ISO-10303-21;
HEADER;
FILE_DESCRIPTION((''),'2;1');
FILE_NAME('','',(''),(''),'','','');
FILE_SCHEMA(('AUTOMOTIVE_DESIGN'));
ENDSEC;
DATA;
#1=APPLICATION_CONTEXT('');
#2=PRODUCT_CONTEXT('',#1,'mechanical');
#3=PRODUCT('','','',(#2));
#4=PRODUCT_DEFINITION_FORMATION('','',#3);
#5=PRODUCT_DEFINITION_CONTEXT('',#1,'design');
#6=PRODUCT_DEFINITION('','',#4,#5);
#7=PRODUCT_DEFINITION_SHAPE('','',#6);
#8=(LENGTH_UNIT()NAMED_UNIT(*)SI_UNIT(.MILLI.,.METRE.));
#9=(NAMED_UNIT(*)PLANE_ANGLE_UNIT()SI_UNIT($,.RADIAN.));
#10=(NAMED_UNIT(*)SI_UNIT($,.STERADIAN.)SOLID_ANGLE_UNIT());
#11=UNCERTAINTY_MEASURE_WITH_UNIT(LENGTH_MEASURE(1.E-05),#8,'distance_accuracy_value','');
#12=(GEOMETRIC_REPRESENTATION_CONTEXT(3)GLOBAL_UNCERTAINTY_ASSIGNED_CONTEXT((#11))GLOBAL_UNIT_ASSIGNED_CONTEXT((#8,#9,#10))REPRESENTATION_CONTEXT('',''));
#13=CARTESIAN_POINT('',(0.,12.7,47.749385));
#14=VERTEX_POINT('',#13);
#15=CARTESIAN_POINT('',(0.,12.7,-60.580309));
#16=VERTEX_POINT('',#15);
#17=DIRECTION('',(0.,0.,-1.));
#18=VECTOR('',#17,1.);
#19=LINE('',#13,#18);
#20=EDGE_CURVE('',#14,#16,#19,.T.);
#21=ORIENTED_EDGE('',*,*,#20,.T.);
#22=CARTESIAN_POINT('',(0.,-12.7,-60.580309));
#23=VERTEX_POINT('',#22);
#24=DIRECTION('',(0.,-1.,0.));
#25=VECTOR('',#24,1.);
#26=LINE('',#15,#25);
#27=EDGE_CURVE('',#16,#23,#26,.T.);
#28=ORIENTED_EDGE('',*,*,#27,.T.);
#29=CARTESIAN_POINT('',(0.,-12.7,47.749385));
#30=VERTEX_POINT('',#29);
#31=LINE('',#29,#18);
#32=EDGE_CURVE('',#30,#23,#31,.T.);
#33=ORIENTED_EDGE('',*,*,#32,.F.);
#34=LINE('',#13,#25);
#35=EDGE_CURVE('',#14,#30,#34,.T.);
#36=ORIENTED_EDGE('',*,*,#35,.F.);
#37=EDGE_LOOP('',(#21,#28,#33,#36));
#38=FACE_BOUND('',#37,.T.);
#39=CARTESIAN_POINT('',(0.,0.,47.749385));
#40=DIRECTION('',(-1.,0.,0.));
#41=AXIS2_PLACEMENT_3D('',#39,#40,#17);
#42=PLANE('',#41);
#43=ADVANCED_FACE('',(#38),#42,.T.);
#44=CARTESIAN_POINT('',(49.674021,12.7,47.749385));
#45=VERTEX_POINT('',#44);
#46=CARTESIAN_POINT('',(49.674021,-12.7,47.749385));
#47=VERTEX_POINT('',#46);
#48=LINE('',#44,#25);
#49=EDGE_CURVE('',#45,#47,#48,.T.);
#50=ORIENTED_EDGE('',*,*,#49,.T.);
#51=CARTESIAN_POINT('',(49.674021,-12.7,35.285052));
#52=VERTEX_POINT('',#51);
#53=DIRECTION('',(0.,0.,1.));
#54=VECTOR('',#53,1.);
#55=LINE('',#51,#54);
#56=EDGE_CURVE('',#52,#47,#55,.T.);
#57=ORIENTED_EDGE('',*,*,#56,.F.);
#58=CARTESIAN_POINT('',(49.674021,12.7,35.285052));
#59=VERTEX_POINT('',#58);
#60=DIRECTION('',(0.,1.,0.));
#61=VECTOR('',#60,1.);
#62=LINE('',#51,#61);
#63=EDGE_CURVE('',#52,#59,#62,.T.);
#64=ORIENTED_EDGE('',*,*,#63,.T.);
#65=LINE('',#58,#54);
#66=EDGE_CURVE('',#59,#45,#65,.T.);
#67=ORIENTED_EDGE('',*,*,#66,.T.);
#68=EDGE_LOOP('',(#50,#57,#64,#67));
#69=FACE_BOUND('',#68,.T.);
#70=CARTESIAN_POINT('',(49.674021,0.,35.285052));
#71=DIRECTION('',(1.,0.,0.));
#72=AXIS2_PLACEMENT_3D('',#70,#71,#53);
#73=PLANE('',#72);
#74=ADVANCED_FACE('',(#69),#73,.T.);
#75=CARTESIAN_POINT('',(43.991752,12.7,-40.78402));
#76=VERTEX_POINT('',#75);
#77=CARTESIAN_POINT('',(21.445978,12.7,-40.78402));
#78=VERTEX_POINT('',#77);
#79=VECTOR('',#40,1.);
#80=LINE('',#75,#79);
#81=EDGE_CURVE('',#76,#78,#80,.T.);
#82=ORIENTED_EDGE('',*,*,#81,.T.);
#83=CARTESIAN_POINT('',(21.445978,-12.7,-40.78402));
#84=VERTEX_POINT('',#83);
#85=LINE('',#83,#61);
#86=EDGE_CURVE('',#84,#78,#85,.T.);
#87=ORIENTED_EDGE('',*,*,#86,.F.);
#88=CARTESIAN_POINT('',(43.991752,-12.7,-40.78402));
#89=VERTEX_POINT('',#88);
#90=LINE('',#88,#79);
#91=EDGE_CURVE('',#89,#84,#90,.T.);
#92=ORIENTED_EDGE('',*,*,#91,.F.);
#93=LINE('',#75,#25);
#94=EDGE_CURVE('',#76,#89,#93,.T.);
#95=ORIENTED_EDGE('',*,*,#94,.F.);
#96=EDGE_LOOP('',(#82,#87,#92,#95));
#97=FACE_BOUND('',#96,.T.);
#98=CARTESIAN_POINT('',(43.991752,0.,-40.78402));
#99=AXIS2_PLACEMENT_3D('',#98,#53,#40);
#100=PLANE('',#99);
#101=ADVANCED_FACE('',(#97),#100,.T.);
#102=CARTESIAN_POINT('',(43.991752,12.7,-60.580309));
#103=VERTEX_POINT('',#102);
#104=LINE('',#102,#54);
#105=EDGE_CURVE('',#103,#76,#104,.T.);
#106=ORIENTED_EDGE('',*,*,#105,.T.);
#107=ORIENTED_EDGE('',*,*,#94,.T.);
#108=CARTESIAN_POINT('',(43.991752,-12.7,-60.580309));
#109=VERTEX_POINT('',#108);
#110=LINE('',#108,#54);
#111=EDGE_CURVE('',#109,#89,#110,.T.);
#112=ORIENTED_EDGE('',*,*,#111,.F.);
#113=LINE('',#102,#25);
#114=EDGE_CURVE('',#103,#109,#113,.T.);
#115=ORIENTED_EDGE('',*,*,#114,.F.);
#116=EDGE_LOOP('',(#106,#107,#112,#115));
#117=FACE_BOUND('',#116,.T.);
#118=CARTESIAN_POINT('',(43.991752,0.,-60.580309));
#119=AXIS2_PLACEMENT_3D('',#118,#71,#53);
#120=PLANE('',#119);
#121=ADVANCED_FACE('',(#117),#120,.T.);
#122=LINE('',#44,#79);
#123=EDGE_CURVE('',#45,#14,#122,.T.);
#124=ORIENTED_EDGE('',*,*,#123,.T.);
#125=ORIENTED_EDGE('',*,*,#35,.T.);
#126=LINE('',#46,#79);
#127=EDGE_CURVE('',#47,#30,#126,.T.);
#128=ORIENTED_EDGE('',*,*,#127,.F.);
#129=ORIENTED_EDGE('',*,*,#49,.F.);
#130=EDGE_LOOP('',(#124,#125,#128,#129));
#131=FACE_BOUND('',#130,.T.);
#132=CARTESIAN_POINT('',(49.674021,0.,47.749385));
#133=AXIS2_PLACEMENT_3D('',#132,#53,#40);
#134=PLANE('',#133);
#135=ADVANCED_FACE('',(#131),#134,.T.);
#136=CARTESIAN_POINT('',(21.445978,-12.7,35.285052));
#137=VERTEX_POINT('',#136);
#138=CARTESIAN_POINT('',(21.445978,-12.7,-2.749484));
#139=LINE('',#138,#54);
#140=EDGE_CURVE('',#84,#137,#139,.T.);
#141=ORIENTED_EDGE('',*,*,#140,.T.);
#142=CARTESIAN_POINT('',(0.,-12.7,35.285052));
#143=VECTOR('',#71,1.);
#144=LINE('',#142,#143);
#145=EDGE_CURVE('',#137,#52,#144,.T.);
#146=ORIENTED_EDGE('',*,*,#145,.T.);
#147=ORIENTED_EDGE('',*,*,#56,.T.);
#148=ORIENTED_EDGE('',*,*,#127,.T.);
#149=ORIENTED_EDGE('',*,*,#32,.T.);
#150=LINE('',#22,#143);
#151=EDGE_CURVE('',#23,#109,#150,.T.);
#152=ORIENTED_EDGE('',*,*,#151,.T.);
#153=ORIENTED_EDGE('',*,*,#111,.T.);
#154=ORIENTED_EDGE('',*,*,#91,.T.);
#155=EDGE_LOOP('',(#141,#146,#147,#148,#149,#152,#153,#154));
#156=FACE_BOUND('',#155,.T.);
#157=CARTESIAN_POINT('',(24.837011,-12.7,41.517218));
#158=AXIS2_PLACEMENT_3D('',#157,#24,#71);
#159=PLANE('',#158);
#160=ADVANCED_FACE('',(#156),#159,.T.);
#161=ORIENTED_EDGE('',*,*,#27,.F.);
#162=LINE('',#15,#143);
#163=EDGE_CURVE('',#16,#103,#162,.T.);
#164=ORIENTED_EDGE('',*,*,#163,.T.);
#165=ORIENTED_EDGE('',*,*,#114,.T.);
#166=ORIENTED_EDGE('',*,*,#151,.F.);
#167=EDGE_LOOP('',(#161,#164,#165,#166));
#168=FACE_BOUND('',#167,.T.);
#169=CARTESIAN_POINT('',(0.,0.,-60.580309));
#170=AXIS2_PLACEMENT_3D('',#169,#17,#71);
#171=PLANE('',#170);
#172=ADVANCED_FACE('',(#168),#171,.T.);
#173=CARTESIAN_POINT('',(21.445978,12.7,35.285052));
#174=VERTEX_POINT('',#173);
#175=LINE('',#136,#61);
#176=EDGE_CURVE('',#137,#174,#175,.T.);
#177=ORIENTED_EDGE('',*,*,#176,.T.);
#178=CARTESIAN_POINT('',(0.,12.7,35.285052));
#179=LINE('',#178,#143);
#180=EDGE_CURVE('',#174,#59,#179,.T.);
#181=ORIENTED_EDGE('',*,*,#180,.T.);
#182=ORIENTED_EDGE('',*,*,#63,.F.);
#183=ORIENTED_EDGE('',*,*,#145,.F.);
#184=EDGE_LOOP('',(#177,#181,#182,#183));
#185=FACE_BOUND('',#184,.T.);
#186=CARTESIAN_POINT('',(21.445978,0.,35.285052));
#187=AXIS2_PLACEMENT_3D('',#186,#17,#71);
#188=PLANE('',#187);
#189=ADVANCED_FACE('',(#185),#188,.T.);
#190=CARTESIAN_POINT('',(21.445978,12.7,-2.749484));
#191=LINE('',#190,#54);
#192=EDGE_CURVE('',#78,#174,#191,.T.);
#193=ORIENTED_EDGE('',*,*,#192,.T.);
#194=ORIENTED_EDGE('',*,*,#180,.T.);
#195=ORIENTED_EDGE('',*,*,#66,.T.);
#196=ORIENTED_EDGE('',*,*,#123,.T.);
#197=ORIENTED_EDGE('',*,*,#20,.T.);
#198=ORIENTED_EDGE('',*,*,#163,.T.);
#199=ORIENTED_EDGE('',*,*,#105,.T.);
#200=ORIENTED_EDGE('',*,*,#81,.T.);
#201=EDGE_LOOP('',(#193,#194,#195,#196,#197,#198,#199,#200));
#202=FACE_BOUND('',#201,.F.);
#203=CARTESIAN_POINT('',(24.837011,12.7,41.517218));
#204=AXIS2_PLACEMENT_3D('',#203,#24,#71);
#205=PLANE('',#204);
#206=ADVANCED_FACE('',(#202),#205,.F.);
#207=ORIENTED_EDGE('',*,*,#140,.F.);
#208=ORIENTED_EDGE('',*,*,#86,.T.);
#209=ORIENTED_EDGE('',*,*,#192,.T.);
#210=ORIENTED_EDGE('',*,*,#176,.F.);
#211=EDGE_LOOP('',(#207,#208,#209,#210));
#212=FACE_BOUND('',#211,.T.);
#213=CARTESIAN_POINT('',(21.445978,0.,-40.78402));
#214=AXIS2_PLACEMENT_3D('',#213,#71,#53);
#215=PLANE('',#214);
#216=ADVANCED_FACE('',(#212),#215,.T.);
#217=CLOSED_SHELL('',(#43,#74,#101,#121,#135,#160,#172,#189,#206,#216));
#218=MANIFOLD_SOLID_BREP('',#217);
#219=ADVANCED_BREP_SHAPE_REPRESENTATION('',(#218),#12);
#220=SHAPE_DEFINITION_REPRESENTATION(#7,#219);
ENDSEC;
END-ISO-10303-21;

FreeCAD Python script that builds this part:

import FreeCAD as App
import Part
import Sketcher
Q = App.Units.Quantity


def add_polygon(sketch, points):
    """Adds a closed chain of lines whose ends are joined by coincident constraints."""
    first, n = sketch.GeometryCount, len(points)
    for a, b in zip(points, points[1:] + points[:1]):
        sketch.addGeometry(Part.LineSegment(App.Vector(*a, 0), App.Vector(*b, 0)), False)
    for i in range(n):
        sketch.addConstraint(Sketcher.Constraint("Coincident", first + i, 2, first + (i + 1) % n, 1))

doc = App.newDocument("Part")
params = doc.addObject("Spreadsheet::Sheet", "Params")
for row, (alias, value) in enumerate([
    ("pad1_length", "1 in"),
], start=1):
    params.set(f"A{row}", alias)
    params.set(f"B{row}", "=" + value)
    params.setAlias(f"B{row}", alias)

body = doc.addObject("PartDesign::Body", "Body")

# Sketch on XZ plane
sketch1 = doc.addObject("Sketcher::SketchObject", "Sketch")
body.addObject(sketch1)
sketch1.AttachmentSupport = (doc.XZ_Plane, [""])
sketch1.MapMode = "FlatFace"
add_polygon(sketch1, [(50, 35), (50, 48), (0, 48), (0, -61), (44, -61), (44, -41), (21, -41), (21, 35)])  # lines 0-7
sketch1.addConstraint([
    Sketcher.Constraint("Vertical", 0),
    Sketcher.Constraint("Horizontal", 1),
    Sketcher.Constraint("Vertical", 2),
    Sketcher.Constraint("Horizontal", 3),
    Sketcher.Constraint("Vertical", 4),
    Sketcher.Constraint("Horizontal", 5),
    Sketcher.Constraint("Vertical", 6),
    Sketcher.Constraint("Horizontal", 7),
    Sketcher.Constraint("PointOnObject", 1, 2, -2),
    Sketcher.Constraint("DistanceX", 1, 2, 1, 1, Q("49.674021 mm")),
    Sketcher.Constraint("DistanceX", 3, 1, 3, 2, Q("43.991752 mm")),
    Sketcher.Constraint("DistanceY", 4, 1, 4, 2, Q("19.796289 mm")),
    Sketcher.Constraint("DistanceX", 5, 2, 5, 1, Q("22.545774 mm")),
    Sketcher.Constraint("DistanceY", 0, 1, 0, 2, Q("12.464333 mm")),
    Sketcher.Constraint("DistanceY", 2, 2, 2, 1, Q("108.329694 mm")),
    Sketcher.Constraint("DistanceY", 2, 2, -1, 1, Q("60.580309 mm")),
])
pad1 = doc.addObject("PartDesign::Pad", "Pad")
body.addObject(pad1)
pad1.Profile = sketch1
pad1.setExpression("Length", "Params.pad1_length")
pad1.Midplane = True

doc.recompute()
